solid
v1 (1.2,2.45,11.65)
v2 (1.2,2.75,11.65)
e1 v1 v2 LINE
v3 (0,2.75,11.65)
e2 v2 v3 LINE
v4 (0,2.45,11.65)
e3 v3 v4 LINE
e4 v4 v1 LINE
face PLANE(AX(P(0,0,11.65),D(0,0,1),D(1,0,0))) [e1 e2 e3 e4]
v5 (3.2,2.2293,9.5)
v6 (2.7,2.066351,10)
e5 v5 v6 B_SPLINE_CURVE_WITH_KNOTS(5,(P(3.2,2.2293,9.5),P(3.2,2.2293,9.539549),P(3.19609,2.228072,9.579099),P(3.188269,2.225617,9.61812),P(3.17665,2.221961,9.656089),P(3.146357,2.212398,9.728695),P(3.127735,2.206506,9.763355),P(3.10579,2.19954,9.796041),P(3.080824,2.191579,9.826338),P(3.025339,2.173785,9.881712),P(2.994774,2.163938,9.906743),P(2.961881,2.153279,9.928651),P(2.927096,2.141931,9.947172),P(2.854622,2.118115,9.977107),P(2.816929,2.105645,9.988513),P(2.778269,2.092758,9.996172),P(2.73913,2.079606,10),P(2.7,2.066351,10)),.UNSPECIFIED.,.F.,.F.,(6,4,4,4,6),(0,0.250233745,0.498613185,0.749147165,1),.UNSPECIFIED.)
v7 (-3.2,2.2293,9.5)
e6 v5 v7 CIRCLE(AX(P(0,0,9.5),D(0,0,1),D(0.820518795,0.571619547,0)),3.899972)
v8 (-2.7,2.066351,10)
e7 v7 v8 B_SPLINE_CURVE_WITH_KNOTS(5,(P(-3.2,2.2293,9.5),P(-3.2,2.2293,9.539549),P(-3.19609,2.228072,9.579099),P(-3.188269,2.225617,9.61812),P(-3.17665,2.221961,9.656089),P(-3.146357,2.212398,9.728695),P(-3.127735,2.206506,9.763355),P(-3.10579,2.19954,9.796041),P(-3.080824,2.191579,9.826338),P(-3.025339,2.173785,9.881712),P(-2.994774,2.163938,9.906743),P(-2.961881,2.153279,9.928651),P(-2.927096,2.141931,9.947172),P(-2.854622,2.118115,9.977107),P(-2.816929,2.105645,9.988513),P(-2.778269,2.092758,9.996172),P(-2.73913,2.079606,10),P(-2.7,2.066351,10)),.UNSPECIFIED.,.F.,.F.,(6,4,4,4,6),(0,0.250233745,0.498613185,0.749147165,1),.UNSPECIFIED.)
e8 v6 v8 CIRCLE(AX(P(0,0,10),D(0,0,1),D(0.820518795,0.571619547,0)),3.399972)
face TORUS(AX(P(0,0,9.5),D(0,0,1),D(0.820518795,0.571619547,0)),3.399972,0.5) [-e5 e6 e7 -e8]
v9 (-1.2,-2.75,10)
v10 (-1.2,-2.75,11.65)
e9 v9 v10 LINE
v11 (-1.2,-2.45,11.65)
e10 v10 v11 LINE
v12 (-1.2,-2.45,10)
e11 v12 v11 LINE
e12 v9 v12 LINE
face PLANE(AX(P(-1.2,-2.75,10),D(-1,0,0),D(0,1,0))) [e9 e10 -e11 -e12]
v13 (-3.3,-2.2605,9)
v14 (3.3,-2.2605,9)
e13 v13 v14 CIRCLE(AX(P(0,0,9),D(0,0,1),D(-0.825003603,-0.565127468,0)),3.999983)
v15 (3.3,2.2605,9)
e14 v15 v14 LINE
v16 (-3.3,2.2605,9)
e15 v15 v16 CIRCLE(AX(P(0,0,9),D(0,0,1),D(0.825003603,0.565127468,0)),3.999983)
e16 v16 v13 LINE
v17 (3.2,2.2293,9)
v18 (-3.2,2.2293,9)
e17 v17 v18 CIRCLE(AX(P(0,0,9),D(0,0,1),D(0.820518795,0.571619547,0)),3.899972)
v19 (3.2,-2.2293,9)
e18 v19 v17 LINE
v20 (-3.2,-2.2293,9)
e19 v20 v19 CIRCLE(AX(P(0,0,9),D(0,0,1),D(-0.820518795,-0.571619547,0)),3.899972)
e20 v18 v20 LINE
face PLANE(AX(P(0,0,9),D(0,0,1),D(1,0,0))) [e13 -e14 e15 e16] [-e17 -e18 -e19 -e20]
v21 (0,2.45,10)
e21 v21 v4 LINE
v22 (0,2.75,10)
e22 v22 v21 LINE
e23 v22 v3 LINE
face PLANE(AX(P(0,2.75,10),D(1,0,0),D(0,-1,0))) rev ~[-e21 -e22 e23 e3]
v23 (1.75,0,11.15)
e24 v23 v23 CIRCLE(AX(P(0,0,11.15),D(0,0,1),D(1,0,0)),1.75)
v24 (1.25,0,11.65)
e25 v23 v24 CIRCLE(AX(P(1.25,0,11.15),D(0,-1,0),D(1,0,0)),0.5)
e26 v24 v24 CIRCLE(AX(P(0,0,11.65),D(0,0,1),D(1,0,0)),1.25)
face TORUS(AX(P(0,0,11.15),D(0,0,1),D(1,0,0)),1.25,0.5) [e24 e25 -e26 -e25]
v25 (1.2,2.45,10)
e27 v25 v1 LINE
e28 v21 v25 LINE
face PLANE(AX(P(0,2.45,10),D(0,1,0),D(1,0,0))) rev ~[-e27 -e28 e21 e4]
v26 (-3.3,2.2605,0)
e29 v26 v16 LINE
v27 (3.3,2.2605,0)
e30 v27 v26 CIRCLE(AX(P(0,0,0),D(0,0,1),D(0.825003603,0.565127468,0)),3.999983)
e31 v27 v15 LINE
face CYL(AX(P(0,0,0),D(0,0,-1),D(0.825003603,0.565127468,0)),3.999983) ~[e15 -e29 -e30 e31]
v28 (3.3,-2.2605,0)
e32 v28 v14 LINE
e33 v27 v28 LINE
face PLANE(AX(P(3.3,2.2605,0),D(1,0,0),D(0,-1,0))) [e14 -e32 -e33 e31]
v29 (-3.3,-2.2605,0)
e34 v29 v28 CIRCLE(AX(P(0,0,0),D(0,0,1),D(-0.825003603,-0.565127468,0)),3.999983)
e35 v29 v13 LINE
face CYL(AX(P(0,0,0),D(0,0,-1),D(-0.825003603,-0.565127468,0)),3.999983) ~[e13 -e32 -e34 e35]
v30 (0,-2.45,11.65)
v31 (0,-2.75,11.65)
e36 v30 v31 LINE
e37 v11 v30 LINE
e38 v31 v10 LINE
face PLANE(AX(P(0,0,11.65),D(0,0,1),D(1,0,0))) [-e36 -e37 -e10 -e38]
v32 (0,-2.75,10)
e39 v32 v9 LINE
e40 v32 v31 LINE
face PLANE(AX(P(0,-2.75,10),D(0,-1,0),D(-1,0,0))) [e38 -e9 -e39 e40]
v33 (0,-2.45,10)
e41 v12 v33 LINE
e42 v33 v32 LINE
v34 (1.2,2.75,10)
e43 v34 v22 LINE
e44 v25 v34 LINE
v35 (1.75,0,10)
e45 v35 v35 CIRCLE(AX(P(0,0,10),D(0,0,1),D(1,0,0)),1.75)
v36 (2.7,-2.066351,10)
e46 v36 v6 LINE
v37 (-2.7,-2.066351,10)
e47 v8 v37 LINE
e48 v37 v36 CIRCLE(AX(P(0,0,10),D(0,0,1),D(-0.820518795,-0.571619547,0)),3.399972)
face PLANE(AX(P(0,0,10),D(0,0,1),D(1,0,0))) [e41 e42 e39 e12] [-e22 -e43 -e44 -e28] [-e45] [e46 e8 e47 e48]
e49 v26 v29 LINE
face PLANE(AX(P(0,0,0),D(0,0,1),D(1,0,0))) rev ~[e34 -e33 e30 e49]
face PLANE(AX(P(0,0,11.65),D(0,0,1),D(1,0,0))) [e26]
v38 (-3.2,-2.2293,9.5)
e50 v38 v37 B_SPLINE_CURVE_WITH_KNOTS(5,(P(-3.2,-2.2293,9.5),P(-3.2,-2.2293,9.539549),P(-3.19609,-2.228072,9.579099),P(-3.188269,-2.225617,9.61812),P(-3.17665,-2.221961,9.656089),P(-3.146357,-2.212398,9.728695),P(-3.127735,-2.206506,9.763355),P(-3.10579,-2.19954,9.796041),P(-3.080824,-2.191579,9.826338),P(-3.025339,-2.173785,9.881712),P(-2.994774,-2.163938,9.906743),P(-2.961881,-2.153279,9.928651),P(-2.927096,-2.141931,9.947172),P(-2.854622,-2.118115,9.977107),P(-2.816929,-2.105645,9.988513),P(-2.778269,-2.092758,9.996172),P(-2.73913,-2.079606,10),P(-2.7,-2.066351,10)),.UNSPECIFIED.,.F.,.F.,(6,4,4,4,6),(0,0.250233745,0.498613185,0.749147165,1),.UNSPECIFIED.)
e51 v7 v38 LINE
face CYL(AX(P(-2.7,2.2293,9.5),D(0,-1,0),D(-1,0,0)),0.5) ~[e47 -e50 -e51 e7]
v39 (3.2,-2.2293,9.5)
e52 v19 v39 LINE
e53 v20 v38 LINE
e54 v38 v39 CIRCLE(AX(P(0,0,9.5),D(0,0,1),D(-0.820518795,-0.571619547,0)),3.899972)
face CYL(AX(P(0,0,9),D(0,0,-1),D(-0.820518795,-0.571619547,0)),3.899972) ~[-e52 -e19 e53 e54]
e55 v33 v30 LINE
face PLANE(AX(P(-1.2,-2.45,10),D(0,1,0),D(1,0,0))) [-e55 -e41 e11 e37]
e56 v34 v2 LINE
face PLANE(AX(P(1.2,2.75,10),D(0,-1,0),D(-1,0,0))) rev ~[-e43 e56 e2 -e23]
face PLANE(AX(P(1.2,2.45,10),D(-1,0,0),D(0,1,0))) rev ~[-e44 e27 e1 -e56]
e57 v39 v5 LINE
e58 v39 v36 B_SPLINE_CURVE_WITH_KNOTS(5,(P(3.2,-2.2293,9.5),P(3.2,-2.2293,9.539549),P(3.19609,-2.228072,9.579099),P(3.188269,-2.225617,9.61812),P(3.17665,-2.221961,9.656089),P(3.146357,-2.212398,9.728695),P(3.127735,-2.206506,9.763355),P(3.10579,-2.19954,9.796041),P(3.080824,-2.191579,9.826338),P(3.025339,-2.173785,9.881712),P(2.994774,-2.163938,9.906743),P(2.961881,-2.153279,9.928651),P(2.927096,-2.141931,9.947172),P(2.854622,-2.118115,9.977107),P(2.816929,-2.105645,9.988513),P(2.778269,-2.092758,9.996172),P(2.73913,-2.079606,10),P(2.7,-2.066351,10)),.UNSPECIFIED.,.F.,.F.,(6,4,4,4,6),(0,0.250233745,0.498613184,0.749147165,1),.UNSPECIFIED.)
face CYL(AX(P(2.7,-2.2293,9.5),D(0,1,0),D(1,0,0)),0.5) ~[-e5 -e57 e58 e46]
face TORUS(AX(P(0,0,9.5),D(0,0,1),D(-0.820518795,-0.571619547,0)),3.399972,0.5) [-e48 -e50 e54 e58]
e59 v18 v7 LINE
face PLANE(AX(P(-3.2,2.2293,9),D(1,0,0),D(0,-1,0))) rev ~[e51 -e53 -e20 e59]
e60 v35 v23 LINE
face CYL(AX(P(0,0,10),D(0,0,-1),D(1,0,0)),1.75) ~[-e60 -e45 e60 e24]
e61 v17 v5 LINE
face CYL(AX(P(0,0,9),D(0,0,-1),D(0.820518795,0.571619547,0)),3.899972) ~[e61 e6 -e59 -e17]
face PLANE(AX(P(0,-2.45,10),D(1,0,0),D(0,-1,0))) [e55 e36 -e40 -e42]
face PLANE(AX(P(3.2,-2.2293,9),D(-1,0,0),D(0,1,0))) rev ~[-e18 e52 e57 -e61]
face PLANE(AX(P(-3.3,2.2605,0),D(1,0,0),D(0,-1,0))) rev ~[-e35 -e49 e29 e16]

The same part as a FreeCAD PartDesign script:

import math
import FreeCAD as App
import Part
import Sketcher

V = App.Vector


def edges_at(feature, points):
    """Names of the edges that pass closest to the given points."""
    edges = feature.Shape.Edges
    near = lambda p: min(range(len(edges)), key=lambda i: edges[i].distToShape(Part.Vertex(*p))[0])
    return sorted({f"Edge{near(p) + 1}" for p in points})


def add_polygon(sketch, points):
    """Adds a closed chain of lines whose ends are joined by coincident constraints."""
    first, n = sketch.GeometryCount, len(points)
    for a, b in zip(points, points[1:] + points[:1]):
        sketch.addGeometry(Part.LineSegment(App.Vector(*a, 0), App.Vector(*b, 0)), False)
    for i in range(n):
        sketch.addConstraint(Sketcher.Constraint("Coincident", first + i, 2, first + (i + 1) % n, 1))

doc = App.newDocument("Part")
body = doc.addObject("PartDesign::Body", "Body")

sketch1 = body.newObject("Sketcher::SketchObject", "Sketch")
sketch1.AttachmentSupport = (doc.getObject("XY_Plane"), [""])
sketch1.MapMode = "FlatFace"
sketch1.addGeometry(Part.ArcOfCircle(Part.Circle(V(0, 0, 0), V(0, 0, 1), 4), math.radians(34), math.radians(146)), False)
sketch1.addGeometry(Part.LineSegment(V(-3.3, 2.3, 0), V(-3.3, -2.3, 0)), False)
sketch1.addGeometry(Part.ArcOfCircle(Part.Circle(V(0, 0, 0), V(0, 0, 1), 4), math.radians(-146), math.radians(-34)), False)
sketch1.addGeometry(Part.LineSegment(V(3.3, -2.3, 0), V(3.3, 2.3, 0)), False)
sketch1.addConstraint(Sketcher.Constraint("Coincident", 0, 2, 1, 1))
sketch1.addConstraint(Sketcher.Constraint("Coincident", 1, 2, 2, 1))
sketch1.addConstraint(Sketcher.Constraint("Coincident", 2, 2, 3, 1))
sketch1.addConstraint(Sketcher.Constraint("Coincident", 3, 2, 0, 1))
sketch1.addConstraint(Sketcher.Constraint("Vertical", 1))
sketch1.addConstraint(Sketcher.Constraint("Vertical", 3))
sketch1.addConstraint(Sketcher.Constraint("Coincident", 0, 3, -1, 1))
sketch1.addConstraint(Sketcher.Constraint("Coincident", 2, 3, -1, 1))
sketch1.addConstraint(Sketcher.Constraint("Equal", 0, 2))
sketch1.addConstraint(Sketcher.Constraint("Horizontal", 1, 2, 2, 2))
sketch1.addConstraint(Sketcher.Constraint("Radius", 0, 4.0))
sketch1.addConstraint(Sketcher.Constraint("DistanceX", 1, 2, 2, 2, 6.6))
pad1 = body.newObject("PartDesign::Pad", "Pad")
pad1.Profile = sketch1
pad1.Length = 9

sketch2 = body.newObject("Sketcher::SketchObject", "Sketch001")
sketch2.AttachmentSupport = (doc.getObject("XY_Plane"), [""])
sketch2.MapMode = "FlatFace"
sketch2.AttachmentOffset = App.Placement(V(0, 0, 9), App.Rotation())
sketch2.addGeometry(Part.ArcOfCircle(Part.Circle(V(0, 0, 0), V(0, 0, 1), 3.9), math.radians(35), math.radians(145)), False)
sketch2.addGeometry(Part.LineSegment(V(-3.2, 2.2, 0), V(-3.2, -2.2, 0)), False)
sketch2.addGeometry(Part.ArcOfCircle(Part.Circle(V(0, 0, 0), V(0, 0, 1), 3.9), math.radians(-145), math.radians(-35)), False)
sketch2.addGeometry(Part.LineSegment(V(3.2, -2.2, 0), V(3.2, 2.2, 0)), False)
sketch2.addConstraint(Sketcher.Constraint("Coincident", 0, 2, 1, 1))
sketch2.addConstraint(Sketcher.Constraint("Coincident", 1, 2, 2, 1))
sketch2.addConstraint(Sketcher.Constraint("Coincident", 2, 2, 3, 1))
sketch2.addConstraint(Sketcher.Constraint("Coincident", 3, 2, 0, 1))
sketch2.addConstraint(Sketcher.Constraint("Vertical", 1))
sketch2.addConstraint(Sketcher.Constraint("Vertical", 3))
sketch2.addConstraint(Sketcher.Constraint("Coincident", 0, 3, -1, 1))
sketch2.addConstraint(Sketcher.Constraint("Coincident", 2, 3, -1, 1))
sketch2.addConstraint(Sketcher.Constraint("Equal", 0, 2))
sketch2.addConstraint(Sketcher.Constraint("Horizontal", 1, 2, 2, 2))
sketch2.addConstraint(Sketcher.Constraint("Radius", 0, 3.9))
sketch2.addConstraint(Sketcher.Constraint("DistanceX", 0, 2, -1, 1, 3.2))
pad2 = body.newObject("PartDesign::Pad", "Pad001")
pad2.Profile = sketch2
pad2.Length = 1
doc.recompute()

fillet = body.newObject("PartDesign::Fillet", "Fillet")
fillet.Base = (pad2, edges_at(pad2, [
    (3.2, 0, 10),
    (0, 3.9, 10),
    (-3.2, 0, 10),
    (0, -3.9, 10),
]))
fillet.Radius = 0.5

sketch3 = body.newObject("Sketcher::SketchObject", "Sketch002")
sketch3.AttachmentSupport = (doc.getObject("XY_Plane"), [""])
sketch3.MapMode = "FlatFace"
sketch3.AttachmentOffset = App.Placement(V(0, 0, 10), App.Rotation())
sketch3.addGeometry(Part.Circle(V(0, 0, 0), V(0, 0, 1), 1.8), False)
sketch3.addConstraint(Sketcher.Constraint("Coincident", 0, 3, -1, 1))
sketch3.addConstraint(Sketcher.Constraint("Diameter", 0, 3.5))
pad3 = body.newObject("PartDesign::Pad", "Pad002")
pad3.Profile = sketch3
pad3.Length = 1.65
doc.recompute()

fillet2 = body.newObject("PartDesign::Fillet", "Fillet001")
fillet2.Base = (pad3, edges_at(pad3, [(-1.75, 0, 11.65)]))
fillet2.Radius = 0.5

sketch4 = body.newObject("Sketcher::SketchObject", "Sketch003")
sketch4.AttachmentSupport = (doc.getObject("XY_Plane"), [""])
sketch4.MapMode = "FlatFace"
sketch4.AttachmentOffset = App.Placement(V(0, 0, 10), App.Rotation())
add_polygon(sketch4, [(-1.2, -2.75), (0, -2.75), (0, -2.45), (-1.2, -2.45)])
add_polygon(sketch4, [(0, 2.75), (0, 2.45), (1.2, 2.45), (1.2, 2.75)])
sketch4.addConstraint(Sketcher.Constraint("Horizontal", 0))
sketch4.addConstraint(Sketcher.Constraint("Vertical", 1))
sketch4.addConstraint(Sketcher.Constraint("Horizontal", 2))
sketch4.addConstraint(Sketcher.Constraint("Vertical", 3))
sketch4.addConstraint(Sketcher.Constraint("Vertical", 4))
sketch4.addConstraint(Sketcher.Constraint("Horizontal", 5))
sketch4.addConstraint(Sketcher.Constraint("Vertical", 6))
sketch4.addConstraint(Sketcher.Constraint("Horizontal", 7))
sketch4.addConstraint(Sketcher.Constraint("Symmetric", 1, 2, 4, 2, -1, 1))
sketch4.addConstraint(Sketcher.Constraint("Symmetric", 3, 2, 6, 2, -1, 1))
sketch4.addConstraint(Sketcher.Constraint("PointOnObject", 0, 2, -2))
sketch4.addConstraint(Sketcher.Constraint("DistanceX", 0, 1, 0, 2, 1.2))
sketch4.addConstraint(Sketcher.Constraint("DistanceY", 1, 1, 1, 2, 0.3))
sketch4.addConstraint(Sketcher.Constraint("DistanceY", 1, 2, 4, 2, 4.9))
pad4 = body.newObject("PartDesign::Pad", "Pad003")
pad4.Profile = sketch4
pad4.Length = 1.65

doc.recompute()
